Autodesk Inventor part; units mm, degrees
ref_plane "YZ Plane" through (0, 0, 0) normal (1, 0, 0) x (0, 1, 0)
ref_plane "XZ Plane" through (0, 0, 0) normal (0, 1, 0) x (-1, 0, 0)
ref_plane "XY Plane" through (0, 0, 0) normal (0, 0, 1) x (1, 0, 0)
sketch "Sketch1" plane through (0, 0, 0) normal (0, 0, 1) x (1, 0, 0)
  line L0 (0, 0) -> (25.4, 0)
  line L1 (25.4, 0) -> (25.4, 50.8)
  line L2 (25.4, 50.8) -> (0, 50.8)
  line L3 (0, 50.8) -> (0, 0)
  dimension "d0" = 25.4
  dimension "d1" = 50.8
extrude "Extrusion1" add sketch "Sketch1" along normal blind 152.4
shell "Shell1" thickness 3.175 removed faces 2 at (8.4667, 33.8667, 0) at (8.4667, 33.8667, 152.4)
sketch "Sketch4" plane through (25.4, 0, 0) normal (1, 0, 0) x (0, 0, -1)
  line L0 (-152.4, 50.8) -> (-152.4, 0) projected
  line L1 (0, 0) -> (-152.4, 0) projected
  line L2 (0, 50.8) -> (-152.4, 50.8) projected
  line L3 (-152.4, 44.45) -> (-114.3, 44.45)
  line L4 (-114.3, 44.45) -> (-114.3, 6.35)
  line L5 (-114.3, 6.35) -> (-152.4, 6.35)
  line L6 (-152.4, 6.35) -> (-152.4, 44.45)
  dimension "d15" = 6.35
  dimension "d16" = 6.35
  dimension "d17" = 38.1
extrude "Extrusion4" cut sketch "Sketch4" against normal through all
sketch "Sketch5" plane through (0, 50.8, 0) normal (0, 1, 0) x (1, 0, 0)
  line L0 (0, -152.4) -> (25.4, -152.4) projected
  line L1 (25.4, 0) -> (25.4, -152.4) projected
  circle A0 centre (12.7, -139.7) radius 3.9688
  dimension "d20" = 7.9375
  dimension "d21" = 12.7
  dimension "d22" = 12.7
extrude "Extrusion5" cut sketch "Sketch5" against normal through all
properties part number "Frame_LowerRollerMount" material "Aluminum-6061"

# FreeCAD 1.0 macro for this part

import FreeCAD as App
import Part
import Sketcher
from FreeCAD import Vector
Q = App.Units.Quantity


def faces_at(feature, points):
    """Names of the faces that lie closest to the given points."""
    faces = feature.Shape.Faces
    near = lambda p: min(range(len(faces)), key=lambda i: faces[i].distToShape(Part.Vertex(*p))[0])
    return sorted({f"Face{near(p) + 1}" for p in points})

doc = App.newDocument("Part")
body = doc.addObject("PartDesign::Body", "Body")

sketch1 = body.newObject("Sketcher::SketchObject", "Sketch")
sketch1.AttachmentSupport = (doc.getObject("XY_Plane"), [""])
sketch1.MapMode = "FlatFace"
sketch1.addGeometry([
    Part.LineSegment(Vector(0, 51, 0), Vector(0, 0, 0)),
    Part.LineSegment(Vector(0, 0, 0), Vector(25, 0, 0)),
    Part.LineSegment(Vector(25, 0, 0), Vector(25, 51, 0)),
    Part.LineSegment(Vector(25, 51, 0), Vector(0, 51, 0)),
], False)
sketch1.addConstraint([
    Sketcher.Constraint("Coincident", 0, 2, 1, 1),
    Sketcher.Constraint("Coincident", 1, 2, 2, 1),
    Sketcher.Constraint("Coincident", 2, 2, 3, 1),
    Sketcher.Constraint("Coincident", 3, 2, 0, 1),
    Sketcher.Constraint("Vertical", 0),
    Sketcher.Constraint("Horizontal", 1),
    Sketcher.Constraint("Vertical", 2),
    Sketcher.Constraint("Horizontal", 3),
    Sketcher.Constraint("Coincident", 0, 2, -1, 1),
    Sketcher.Constraint("DistanceX", 1, 1, 1, 2, Q("1 in")),
    Sketcher.Constraint("DistanceY", 0, 2, 0, 1, Q("2 in")),
])
pad1 = body.newObject("PartDesign::Pad", "Pad")
pad1.Profile = sketch1
pad1.Length = Q("6 in")
doc.recompute()

thickness = body.newObject("PartDesign::Thickness", "Thickness")
thickness.Base = (pad1, faces_at(pad1, [(8.467, 33.867, 0), (8.467, 33.867, 152.4)]))
thickness.Value = Q("0.125 in")
thickness.Reversed = True
thickness.Join = "Intersection"

sketch2 = body.newObject("Sketcher::SketchObject", "Sketch001")
sketch2.AttachmentSupport = (doc.getObject("YZ_Plane"), [""])
sketch2.MapMode = "FlatFace"
sketch2.AttachmentOffset = App.Placement(Vector(0, 0, 1 * 25.4), App.Rotation())
sketch2.addGeometry([
    Part.LineSegment(Vector(44, 114, 0), Vector(44, 152, 0)),
    Part.LineSegment(Vector(44, 152, 0), Vector(6, 152, 0)),
    Part.LineSegment(Vector(6, 152, 0), Vector(6, 114, 0)),
    Part.LineSegment(Vector(6, 114, 0), Vector(44, 114, 0)),
], False)
sketch2.addConstraint([
    Sketcher.Constraint("Coincident", 0, 2, 1, 1),
    Sketcher.Constraint("Coincident", 1, 2, 2, 1),
    Sketcher.Constraint("Coincident", 2, 2, 3, 1),
    Sketcher.Constraint("Coincident", 3, 2, 0, 1),
    Sketcher.Constraint("Vertical", 0),
    Sketcher.Constraint("Horizontal", 1),
    Sketcher.Constraint("Vertical", 2),
    Sketcher.Constraint("Horizontal", 3),
    Sketcher.Constraint("Equal", 3, 0),
    Sketcher.Constraint("DistanceX", 1, 2, 1, 1, Q("1.5 in")),
    Sketcher.Constraint("DistanceX", -1, 1, 1, 2, Q("0.25 in")),
    Sketcher.Constraint("DistanceY", -1, 1, 0, 2, Q("6 in")),
])
pocket1 = body.newObject("PartDesign::Pocket", "Pocket")
pocket1.Profile = sketch2
pocket1.Type = "ThroughAll"

sketch3 = body.newObject("Sketcher::SketchObject", "Sketch002")
sketch3.AttachmentSupport = (doc.getObject("XZ_Plane"), [""])
sketch3.MapMode = "FlatFace"
sketch3.AttachmentOffset = App.Placement(Vector(0, 0, -2 * 25.4), App.Rotation())
sketch3.addGeometry(Part.Circle(Vector(12.7, 139.7, 0), Vector(0, 0, 1), 4), False)
sketch3.addConstraint([
    Sketcher.Constraint("Diameter", 0, Q("0.3125 in")),
    Sketcher.Constraint("DistanceX", -1, 1, 0, 3, Q("0.5 in")),
    Sketcher.Constraint("DistanceY", -1, 1, 0, 3, Q("5.5 in")),
])
pocket2 = body.newObject("PartDesign::Pocket", "Pocket001")
pocket2.Profile = sketch3
pocket2.Type = "ThroughAll"
pocket2.Reversed = True

doc.recompute()
